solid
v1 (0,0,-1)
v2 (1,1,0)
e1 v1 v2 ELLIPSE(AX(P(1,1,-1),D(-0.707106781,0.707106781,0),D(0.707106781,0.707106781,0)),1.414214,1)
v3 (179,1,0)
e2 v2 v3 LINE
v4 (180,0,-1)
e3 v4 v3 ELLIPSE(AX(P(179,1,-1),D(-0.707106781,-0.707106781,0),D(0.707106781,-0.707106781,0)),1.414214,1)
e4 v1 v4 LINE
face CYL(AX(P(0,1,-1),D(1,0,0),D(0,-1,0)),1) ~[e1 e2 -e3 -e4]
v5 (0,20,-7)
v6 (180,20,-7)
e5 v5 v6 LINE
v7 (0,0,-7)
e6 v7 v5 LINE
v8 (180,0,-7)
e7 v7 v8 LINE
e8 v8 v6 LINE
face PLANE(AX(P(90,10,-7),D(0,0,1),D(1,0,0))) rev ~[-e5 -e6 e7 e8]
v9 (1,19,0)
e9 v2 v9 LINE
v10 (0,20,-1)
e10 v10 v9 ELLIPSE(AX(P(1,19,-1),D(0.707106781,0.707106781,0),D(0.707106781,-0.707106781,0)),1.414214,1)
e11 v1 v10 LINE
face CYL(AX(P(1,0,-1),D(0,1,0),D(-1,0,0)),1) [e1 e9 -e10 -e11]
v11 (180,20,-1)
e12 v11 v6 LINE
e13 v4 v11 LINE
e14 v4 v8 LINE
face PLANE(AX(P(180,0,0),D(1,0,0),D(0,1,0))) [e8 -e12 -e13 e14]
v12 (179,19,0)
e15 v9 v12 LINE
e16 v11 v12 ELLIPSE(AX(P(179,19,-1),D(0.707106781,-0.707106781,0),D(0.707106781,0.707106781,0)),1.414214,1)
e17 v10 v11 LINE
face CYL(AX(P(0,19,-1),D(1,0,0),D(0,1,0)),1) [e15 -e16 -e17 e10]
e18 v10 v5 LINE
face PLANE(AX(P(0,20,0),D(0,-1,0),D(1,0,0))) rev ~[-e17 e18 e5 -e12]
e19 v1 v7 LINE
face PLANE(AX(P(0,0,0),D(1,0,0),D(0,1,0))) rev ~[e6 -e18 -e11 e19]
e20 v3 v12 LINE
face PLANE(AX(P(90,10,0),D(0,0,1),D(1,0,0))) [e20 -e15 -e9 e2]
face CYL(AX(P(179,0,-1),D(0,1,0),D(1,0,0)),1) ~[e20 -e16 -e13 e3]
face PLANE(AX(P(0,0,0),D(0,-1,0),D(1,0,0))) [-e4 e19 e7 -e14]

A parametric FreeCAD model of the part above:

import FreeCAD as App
import Part
import Sketcher
Q = App.Units.Quantity


def edges_at(feature, points):
    """Names of the edges that pass closest to the given points."""
    edges = feature.Shape.Edges
    near = lambda p: min(range(len(edges)), key=lambda i: edges[i].distToShape(Part.Vertex(*p))[0])
    return sorted({f"Edge{near(p) + 1}" for p in points})


def add_polygon(sketch, points):
    """Adds a closed chain of lines whose ends are joined by coincident constraints."""
    first, n = sketch.GeometryCount, len(points)
    for a, b in zip(points, points[1:] + points[:1]):
        sketch.addGeometry(Part.LineSegment(App.Vector(*a, 0), App.Vector(*b, 0)), False)
    for i in range(n):
        sketch.addConstraint(Sketcher.Constraint("Coincident", first + i, 2, first + (i + 1) % n, 1))

doc = App.newDocument("Part")
body = doc.addObject("PartDesign::Body", "Body")

# Sketch on XY plane
sketch1 = body.newObject("Sketcher::SketchObject", "Sketch")
sketch1.AttachmentSupport = (doc.getObject("XY_Plane"), [""])
sketch1.MapMode = "FlatFace"
add_polygon(sketch1, [(0, 20), (0, 0), (180, 0), (180, 20)])  # lines 0-3
sketch1.addConstraint([
    Sketcher.Constraint("Vertical", 0),
    Sketcher.Constraint("Horizontal", 1),
    Sketcher.Constraint("Vertical", 2),
    Sketcher.Constraint("Horizontal", 3),
    Sketcher.Constraint("Coincident", 0, 2, -1, 1),
    Sketcher.Constraint("DistanceX", 1, 1, 1, 2, Q("180 mm")),
    Sketcher.Constraint("DistanceY", 0, 2, 0, 1, Q("20 mm")),
])
pad1 = body.newObject("PartDesign::Pad", "Pad")
pad1.Profile = sketch1
pad1.Length = 7
pad1.Reversed = True
doc.recompute()

fillet = body.newObject("PartDesign::Fillet", "Fillet")
fillet.Base = (pad1, edges_at(pad1, [
    (90, 20, 0),
    (0, 10, 0),
    (90, 0, 0),
    (180, 10, 0),
]))
fillet.Radius = 1

doc.recompute()
